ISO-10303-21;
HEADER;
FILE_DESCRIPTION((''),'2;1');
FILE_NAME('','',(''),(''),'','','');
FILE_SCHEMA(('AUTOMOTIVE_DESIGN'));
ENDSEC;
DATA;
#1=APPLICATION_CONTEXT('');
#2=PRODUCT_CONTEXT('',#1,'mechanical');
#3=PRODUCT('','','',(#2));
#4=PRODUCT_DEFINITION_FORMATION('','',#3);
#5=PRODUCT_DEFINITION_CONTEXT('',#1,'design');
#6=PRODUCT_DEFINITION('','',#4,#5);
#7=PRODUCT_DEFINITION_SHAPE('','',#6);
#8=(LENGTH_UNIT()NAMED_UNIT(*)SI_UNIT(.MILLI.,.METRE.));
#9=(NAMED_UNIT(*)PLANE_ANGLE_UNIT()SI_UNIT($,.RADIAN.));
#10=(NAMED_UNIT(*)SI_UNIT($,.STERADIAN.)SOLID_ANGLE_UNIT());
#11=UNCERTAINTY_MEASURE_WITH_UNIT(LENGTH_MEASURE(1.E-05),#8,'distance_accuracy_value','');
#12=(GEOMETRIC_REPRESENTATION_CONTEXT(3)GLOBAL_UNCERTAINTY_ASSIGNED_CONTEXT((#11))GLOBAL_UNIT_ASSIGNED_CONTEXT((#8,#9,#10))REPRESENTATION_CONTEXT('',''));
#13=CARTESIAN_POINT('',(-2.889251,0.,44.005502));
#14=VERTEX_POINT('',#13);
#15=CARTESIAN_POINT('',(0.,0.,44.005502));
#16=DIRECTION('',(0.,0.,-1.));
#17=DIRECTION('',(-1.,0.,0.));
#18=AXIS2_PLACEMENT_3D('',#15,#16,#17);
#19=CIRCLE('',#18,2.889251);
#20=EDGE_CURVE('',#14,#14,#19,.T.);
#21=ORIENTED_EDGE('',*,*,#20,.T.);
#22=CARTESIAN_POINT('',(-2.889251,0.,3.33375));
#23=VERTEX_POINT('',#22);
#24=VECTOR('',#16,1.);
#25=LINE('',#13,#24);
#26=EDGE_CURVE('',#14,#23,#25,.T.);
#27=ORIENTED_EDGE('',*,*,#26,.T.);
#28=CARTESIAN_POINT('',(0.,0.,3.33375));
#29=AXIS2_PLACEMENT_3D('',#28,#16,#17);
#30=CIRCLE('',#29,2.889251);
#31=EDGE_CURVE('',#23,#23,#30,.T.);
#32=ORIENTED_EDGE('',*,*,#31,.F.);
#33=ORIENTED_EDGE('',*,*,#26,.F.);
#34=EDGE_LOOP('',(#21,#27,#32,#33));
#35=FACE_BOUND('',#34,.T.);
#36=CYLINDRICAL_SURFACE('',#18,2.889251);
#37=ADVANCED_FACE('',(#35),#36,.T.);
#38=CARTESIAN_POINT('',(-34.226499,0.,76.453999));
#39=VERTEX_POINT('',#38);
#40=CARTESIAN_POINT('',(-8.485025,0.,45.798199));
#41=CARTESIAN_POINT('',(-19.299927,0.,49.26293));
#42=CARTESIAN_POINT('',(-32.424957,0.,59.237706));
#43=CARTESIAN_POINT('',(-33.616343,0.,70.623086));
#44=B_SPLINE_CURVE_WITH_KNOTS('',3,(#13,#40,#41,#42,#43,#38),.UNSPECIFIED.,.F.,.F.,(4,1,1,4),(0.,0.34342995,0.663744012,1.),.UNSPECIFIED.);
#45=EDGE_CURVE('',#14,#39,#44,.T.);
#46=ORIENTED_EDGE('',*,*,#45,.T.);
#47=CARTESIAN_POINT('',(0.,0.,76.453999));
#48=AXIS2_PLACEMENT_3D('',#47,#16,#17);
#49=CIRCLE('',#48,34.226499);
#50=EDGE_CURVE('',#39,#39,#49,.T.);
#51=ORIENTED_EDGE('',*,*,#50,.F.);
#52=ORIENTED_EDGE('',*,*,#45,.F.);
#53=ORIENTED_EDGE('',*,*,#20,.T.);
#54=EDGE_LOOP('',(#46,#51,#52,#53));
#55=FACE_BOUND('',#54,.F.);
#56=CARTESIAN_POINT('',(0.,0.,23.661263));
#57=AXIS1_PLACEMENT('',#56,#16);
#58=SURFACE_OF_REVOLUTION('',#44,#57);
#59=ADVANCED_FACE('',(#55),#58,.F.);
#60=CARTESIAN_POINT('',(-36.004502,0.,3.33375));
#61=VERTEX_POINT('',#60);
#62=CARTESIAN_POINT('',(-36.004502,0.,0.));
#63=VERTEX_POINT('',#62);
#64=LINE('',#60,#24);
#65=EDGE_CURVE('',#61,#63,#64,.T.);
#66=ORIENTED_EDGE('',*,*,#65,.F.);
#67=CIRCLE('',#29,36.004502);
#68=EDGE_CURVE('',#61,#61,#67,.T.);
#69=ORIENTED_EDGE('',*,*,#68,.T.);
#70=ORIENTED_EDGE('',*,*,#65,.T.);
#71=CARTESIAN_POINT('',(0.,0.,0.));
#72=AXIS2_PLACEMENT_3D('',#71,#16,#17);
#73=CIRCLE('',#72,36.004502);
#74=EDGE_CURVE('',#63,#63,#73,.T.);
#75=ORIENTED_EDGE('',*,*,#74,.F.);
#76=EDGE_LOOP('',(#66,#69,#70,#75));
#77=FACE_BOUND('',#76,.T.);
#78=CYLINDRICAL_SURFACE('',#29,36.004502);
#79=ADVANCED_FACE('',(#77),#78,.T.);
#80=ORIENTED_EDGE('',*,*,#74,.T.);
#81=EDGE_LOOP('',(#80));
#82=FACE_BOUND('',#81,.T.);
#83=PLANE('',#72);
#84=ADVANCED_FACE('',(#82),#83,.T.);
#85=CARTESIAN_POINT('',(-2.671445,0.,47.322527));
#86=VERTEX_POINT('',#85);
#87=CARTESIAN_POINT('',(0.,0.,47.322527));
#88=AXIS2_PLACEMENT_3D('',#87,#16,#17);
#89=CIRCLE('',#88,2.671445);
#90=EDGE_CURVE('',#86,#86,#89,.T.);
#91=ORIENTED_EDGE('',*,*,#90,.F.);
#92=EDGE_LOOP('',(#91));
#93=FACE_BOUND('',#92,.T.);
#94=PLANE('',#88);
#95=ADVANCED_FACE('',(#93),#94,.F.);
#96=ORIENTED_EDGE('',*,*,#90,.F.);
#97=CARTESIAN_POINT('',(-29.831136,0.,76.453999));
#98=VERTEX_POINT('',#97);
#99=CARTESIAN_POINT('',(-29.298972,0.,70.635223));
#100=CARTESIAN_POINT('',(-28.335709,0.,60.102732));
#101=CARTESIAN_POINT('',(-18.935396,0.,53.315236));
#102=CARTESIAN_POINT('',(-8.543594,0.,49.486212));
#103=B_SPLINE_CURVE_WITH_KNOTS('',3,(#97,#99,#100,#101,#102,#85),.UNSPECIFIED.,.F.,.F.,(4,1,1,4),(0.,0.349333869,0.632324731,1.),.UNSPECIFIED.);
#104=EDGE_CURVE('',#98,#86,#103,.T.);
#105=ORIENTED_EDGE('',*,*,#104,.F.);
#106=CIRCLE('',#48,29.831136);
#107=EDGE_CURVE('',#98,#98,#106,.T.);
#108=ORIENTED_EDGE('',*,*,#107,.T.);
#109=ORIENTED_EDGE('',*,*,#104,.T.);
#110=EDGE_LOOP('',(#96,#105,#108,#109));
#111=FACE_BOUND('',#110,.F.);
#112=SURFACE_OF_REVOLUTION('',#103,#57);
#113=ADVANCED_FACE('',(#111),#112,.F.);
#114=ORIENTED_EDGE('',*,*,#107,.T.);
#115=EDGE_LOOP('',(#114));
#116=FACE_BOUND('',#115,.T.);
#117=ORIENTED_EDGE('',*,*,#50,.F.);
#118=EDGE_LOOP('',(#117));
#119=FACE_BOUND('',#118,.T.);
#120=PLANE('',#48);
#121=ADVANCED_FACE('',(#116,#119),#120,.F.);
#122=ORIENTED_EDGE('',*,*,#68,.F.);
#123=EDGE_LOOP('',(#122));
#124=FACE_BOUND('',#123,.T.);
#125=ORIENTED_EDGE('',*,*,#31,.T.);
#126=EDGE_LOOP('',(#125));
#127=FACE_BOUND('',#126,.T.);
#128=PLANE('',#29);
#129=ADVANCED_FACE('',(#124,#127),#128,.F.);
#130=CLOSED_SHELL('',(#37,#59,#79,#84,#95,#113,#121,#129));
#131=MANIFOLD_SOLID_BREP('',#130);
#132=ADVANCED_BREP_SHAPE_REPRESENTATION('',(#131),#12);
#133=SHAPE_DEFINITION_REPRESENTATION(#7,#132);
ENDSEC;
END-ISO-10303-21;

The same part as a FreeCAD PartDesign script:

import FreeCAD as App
import Part
import Sketcher

doc = App.newDocument("Part")
params = doc.addObject("Spreadsheet::Sheet", "Params")
for row, (alias, value) in enumerate([
    ("revolution_angle", "360 deg"),
], start=1):
    params.set(f"A{row}", alias)
    params.set(f"B{row}", "=" + value)
    params.setAlias(f"B{row}", alias)

body = doc.addObject("PartDesign::Body", "Body")

# Sketch on XZ plane
sketch1 = body.newObject("Sketcher::SketchObject", "Sketch")
sketch1.AttachmentSupport = (doc.getObject("XZ_Plane"), [""])
sketch1.MapMode = "FlatFace"
sketch1.addGeometry(Part.LineSegment(App.Vector(-36.004502, 0, 0), App.Vector(0, 0, 0)), False)
sketch1.addGeometry(Part.LineSegment(App.Vector(0, 0, 0), App.Vector(0, 47.322527, 0)), False)
sketch1.addGeometry(Part.LineSegment(App.Vector(0, 47.322527, 0), App.Vector(-2.671445, 47.322527, 0)), False)
sketch1.addGeometry(Part.BSplineCurve([App.Vector(-29.831136, 76.453999, 0), App.Vector(-29.298972, 70.635223, 0), App.Vector(-28.335709, 60.102732, 0), App.Vector(-18.935396, 53.315236, 0), App.Vector(-8.543594, 49.486212, 0), App.Vector(-2.671445, 47.322527, 0)], [4, 1, 1, 4], [0, 0.349333869, 0.632324731, 1], False, 3, [1, 1, 1, 1, 1, 1], False), False)
sketch1.addGeometry(Part.LineSegment(App.Vector(-29.831136, 76.453999, 0), App.Vector(-34.226499, 76.453999, 0)), False)
sketch1.addGeometry(Part.BSplineCurve([App.Vector(-2.889251, 44.005502, 0), App.Vector(-8.485025, 45.798199, 0), App.Vector(-19.299927, 49.26293, 0), App.Vector(-32.424957, 59.237706, 0), App.Vector(-33.616343, 70.623086, 0), App.Vector(-34.226499, 76.453999, 0)], [4, 1, 1, 4], [0, 0.34342995, 0.663744012, 1], False, 3, [1, 1, 1, 1, 1, 1], False), False)
sketch1.addGeometry(Part.LineSegment(App.Vector(-2.889251, 44.005502, 0), App.Vector(-2.889251, 3.33375, 0)), False)
sketch1.addGeometry(Part.LineSegment(App.Vector(-2.889251, 3.33375, 0), App.Vector(-36.004502, 3.33375, 0)), False)
sketch1.addGeometry(Part.LineSegment(App.Vector(-36.004502, 3.33375, 0), App.Vector(-36.004502, 0, 0)), False)
sketch1.addConstraint(Sketcher.Constraint("Block", 3))
sketch1.addConstraint(Sketcher.Constraint("Block", 5))
sketch1.addConstraint(Sketcher.Constraint("Coincident", 0, 2, 1, 1))
sketch1.addConstraint(Sketcher.Constraint("Coincident", 1, 2, 2, 1))
sketch1.addConstraint(Sketcher.Constraint("Coincident", 2, 2, 3, 2))
sketch1.addConstraint(Sketcher.Constraint("Coincident", 3, 1, 4, 1))
sketch1.addConstraint(Sketcher.Constraint("Coincident", 4, 2, 5, 2))
sketch1.addConstraint(Sketcher.Constraint("Coincident", 5, 1, 6, 1))
sketch1.addConstraint(Sketcher.Constraint("Coincident", 6, 2, 7, 1))
sketch1.addConstraint(Sketcher.Constraint("Coincident", 7, 2, 8, 1))
sketch1.addConstraint(Sketcher.Constraint("Coincident", 8, 2, 0, 1))
sketch1.addConstraint(Sketcher.Constraint("Horizontal", 0))
sketch1.addConstraint(Sketcher.Constraint("Vertical", 1))
sketch1.addConstraint(Sketcher.Constraint("Horizontal", 2))
sketch1.addConstraint(Sketcher.Constraint("Vertical", 6))
sketch1.addConstraint(Sketcher.Constraint("Horizontal", 7))
sketch1.addConstraint(Sketcher.Constraint("Vertical", 8))
sketch1.addConstraint(Sketcher.Constraint("Coincident", 0, 2, -1, 1))
sketch1.addConstraint(Sketcher.Constraint("DistanceX", 7, 2, 7, 1, 33.115252))
sketch1.addConstraint(Sketcher.Constraint("DistanceY", 6, 2, 6, 1, 40.671752))
revolution = body.newObject("PartDesign::Revolution", "Revolution")
revolution.Profile = sketch1
revolution.ReferenceAxis = (sketch1, ["V_Axis"])
revolution.setExpression("Angle", "Params.revolution_angle")

doc.recompute()
